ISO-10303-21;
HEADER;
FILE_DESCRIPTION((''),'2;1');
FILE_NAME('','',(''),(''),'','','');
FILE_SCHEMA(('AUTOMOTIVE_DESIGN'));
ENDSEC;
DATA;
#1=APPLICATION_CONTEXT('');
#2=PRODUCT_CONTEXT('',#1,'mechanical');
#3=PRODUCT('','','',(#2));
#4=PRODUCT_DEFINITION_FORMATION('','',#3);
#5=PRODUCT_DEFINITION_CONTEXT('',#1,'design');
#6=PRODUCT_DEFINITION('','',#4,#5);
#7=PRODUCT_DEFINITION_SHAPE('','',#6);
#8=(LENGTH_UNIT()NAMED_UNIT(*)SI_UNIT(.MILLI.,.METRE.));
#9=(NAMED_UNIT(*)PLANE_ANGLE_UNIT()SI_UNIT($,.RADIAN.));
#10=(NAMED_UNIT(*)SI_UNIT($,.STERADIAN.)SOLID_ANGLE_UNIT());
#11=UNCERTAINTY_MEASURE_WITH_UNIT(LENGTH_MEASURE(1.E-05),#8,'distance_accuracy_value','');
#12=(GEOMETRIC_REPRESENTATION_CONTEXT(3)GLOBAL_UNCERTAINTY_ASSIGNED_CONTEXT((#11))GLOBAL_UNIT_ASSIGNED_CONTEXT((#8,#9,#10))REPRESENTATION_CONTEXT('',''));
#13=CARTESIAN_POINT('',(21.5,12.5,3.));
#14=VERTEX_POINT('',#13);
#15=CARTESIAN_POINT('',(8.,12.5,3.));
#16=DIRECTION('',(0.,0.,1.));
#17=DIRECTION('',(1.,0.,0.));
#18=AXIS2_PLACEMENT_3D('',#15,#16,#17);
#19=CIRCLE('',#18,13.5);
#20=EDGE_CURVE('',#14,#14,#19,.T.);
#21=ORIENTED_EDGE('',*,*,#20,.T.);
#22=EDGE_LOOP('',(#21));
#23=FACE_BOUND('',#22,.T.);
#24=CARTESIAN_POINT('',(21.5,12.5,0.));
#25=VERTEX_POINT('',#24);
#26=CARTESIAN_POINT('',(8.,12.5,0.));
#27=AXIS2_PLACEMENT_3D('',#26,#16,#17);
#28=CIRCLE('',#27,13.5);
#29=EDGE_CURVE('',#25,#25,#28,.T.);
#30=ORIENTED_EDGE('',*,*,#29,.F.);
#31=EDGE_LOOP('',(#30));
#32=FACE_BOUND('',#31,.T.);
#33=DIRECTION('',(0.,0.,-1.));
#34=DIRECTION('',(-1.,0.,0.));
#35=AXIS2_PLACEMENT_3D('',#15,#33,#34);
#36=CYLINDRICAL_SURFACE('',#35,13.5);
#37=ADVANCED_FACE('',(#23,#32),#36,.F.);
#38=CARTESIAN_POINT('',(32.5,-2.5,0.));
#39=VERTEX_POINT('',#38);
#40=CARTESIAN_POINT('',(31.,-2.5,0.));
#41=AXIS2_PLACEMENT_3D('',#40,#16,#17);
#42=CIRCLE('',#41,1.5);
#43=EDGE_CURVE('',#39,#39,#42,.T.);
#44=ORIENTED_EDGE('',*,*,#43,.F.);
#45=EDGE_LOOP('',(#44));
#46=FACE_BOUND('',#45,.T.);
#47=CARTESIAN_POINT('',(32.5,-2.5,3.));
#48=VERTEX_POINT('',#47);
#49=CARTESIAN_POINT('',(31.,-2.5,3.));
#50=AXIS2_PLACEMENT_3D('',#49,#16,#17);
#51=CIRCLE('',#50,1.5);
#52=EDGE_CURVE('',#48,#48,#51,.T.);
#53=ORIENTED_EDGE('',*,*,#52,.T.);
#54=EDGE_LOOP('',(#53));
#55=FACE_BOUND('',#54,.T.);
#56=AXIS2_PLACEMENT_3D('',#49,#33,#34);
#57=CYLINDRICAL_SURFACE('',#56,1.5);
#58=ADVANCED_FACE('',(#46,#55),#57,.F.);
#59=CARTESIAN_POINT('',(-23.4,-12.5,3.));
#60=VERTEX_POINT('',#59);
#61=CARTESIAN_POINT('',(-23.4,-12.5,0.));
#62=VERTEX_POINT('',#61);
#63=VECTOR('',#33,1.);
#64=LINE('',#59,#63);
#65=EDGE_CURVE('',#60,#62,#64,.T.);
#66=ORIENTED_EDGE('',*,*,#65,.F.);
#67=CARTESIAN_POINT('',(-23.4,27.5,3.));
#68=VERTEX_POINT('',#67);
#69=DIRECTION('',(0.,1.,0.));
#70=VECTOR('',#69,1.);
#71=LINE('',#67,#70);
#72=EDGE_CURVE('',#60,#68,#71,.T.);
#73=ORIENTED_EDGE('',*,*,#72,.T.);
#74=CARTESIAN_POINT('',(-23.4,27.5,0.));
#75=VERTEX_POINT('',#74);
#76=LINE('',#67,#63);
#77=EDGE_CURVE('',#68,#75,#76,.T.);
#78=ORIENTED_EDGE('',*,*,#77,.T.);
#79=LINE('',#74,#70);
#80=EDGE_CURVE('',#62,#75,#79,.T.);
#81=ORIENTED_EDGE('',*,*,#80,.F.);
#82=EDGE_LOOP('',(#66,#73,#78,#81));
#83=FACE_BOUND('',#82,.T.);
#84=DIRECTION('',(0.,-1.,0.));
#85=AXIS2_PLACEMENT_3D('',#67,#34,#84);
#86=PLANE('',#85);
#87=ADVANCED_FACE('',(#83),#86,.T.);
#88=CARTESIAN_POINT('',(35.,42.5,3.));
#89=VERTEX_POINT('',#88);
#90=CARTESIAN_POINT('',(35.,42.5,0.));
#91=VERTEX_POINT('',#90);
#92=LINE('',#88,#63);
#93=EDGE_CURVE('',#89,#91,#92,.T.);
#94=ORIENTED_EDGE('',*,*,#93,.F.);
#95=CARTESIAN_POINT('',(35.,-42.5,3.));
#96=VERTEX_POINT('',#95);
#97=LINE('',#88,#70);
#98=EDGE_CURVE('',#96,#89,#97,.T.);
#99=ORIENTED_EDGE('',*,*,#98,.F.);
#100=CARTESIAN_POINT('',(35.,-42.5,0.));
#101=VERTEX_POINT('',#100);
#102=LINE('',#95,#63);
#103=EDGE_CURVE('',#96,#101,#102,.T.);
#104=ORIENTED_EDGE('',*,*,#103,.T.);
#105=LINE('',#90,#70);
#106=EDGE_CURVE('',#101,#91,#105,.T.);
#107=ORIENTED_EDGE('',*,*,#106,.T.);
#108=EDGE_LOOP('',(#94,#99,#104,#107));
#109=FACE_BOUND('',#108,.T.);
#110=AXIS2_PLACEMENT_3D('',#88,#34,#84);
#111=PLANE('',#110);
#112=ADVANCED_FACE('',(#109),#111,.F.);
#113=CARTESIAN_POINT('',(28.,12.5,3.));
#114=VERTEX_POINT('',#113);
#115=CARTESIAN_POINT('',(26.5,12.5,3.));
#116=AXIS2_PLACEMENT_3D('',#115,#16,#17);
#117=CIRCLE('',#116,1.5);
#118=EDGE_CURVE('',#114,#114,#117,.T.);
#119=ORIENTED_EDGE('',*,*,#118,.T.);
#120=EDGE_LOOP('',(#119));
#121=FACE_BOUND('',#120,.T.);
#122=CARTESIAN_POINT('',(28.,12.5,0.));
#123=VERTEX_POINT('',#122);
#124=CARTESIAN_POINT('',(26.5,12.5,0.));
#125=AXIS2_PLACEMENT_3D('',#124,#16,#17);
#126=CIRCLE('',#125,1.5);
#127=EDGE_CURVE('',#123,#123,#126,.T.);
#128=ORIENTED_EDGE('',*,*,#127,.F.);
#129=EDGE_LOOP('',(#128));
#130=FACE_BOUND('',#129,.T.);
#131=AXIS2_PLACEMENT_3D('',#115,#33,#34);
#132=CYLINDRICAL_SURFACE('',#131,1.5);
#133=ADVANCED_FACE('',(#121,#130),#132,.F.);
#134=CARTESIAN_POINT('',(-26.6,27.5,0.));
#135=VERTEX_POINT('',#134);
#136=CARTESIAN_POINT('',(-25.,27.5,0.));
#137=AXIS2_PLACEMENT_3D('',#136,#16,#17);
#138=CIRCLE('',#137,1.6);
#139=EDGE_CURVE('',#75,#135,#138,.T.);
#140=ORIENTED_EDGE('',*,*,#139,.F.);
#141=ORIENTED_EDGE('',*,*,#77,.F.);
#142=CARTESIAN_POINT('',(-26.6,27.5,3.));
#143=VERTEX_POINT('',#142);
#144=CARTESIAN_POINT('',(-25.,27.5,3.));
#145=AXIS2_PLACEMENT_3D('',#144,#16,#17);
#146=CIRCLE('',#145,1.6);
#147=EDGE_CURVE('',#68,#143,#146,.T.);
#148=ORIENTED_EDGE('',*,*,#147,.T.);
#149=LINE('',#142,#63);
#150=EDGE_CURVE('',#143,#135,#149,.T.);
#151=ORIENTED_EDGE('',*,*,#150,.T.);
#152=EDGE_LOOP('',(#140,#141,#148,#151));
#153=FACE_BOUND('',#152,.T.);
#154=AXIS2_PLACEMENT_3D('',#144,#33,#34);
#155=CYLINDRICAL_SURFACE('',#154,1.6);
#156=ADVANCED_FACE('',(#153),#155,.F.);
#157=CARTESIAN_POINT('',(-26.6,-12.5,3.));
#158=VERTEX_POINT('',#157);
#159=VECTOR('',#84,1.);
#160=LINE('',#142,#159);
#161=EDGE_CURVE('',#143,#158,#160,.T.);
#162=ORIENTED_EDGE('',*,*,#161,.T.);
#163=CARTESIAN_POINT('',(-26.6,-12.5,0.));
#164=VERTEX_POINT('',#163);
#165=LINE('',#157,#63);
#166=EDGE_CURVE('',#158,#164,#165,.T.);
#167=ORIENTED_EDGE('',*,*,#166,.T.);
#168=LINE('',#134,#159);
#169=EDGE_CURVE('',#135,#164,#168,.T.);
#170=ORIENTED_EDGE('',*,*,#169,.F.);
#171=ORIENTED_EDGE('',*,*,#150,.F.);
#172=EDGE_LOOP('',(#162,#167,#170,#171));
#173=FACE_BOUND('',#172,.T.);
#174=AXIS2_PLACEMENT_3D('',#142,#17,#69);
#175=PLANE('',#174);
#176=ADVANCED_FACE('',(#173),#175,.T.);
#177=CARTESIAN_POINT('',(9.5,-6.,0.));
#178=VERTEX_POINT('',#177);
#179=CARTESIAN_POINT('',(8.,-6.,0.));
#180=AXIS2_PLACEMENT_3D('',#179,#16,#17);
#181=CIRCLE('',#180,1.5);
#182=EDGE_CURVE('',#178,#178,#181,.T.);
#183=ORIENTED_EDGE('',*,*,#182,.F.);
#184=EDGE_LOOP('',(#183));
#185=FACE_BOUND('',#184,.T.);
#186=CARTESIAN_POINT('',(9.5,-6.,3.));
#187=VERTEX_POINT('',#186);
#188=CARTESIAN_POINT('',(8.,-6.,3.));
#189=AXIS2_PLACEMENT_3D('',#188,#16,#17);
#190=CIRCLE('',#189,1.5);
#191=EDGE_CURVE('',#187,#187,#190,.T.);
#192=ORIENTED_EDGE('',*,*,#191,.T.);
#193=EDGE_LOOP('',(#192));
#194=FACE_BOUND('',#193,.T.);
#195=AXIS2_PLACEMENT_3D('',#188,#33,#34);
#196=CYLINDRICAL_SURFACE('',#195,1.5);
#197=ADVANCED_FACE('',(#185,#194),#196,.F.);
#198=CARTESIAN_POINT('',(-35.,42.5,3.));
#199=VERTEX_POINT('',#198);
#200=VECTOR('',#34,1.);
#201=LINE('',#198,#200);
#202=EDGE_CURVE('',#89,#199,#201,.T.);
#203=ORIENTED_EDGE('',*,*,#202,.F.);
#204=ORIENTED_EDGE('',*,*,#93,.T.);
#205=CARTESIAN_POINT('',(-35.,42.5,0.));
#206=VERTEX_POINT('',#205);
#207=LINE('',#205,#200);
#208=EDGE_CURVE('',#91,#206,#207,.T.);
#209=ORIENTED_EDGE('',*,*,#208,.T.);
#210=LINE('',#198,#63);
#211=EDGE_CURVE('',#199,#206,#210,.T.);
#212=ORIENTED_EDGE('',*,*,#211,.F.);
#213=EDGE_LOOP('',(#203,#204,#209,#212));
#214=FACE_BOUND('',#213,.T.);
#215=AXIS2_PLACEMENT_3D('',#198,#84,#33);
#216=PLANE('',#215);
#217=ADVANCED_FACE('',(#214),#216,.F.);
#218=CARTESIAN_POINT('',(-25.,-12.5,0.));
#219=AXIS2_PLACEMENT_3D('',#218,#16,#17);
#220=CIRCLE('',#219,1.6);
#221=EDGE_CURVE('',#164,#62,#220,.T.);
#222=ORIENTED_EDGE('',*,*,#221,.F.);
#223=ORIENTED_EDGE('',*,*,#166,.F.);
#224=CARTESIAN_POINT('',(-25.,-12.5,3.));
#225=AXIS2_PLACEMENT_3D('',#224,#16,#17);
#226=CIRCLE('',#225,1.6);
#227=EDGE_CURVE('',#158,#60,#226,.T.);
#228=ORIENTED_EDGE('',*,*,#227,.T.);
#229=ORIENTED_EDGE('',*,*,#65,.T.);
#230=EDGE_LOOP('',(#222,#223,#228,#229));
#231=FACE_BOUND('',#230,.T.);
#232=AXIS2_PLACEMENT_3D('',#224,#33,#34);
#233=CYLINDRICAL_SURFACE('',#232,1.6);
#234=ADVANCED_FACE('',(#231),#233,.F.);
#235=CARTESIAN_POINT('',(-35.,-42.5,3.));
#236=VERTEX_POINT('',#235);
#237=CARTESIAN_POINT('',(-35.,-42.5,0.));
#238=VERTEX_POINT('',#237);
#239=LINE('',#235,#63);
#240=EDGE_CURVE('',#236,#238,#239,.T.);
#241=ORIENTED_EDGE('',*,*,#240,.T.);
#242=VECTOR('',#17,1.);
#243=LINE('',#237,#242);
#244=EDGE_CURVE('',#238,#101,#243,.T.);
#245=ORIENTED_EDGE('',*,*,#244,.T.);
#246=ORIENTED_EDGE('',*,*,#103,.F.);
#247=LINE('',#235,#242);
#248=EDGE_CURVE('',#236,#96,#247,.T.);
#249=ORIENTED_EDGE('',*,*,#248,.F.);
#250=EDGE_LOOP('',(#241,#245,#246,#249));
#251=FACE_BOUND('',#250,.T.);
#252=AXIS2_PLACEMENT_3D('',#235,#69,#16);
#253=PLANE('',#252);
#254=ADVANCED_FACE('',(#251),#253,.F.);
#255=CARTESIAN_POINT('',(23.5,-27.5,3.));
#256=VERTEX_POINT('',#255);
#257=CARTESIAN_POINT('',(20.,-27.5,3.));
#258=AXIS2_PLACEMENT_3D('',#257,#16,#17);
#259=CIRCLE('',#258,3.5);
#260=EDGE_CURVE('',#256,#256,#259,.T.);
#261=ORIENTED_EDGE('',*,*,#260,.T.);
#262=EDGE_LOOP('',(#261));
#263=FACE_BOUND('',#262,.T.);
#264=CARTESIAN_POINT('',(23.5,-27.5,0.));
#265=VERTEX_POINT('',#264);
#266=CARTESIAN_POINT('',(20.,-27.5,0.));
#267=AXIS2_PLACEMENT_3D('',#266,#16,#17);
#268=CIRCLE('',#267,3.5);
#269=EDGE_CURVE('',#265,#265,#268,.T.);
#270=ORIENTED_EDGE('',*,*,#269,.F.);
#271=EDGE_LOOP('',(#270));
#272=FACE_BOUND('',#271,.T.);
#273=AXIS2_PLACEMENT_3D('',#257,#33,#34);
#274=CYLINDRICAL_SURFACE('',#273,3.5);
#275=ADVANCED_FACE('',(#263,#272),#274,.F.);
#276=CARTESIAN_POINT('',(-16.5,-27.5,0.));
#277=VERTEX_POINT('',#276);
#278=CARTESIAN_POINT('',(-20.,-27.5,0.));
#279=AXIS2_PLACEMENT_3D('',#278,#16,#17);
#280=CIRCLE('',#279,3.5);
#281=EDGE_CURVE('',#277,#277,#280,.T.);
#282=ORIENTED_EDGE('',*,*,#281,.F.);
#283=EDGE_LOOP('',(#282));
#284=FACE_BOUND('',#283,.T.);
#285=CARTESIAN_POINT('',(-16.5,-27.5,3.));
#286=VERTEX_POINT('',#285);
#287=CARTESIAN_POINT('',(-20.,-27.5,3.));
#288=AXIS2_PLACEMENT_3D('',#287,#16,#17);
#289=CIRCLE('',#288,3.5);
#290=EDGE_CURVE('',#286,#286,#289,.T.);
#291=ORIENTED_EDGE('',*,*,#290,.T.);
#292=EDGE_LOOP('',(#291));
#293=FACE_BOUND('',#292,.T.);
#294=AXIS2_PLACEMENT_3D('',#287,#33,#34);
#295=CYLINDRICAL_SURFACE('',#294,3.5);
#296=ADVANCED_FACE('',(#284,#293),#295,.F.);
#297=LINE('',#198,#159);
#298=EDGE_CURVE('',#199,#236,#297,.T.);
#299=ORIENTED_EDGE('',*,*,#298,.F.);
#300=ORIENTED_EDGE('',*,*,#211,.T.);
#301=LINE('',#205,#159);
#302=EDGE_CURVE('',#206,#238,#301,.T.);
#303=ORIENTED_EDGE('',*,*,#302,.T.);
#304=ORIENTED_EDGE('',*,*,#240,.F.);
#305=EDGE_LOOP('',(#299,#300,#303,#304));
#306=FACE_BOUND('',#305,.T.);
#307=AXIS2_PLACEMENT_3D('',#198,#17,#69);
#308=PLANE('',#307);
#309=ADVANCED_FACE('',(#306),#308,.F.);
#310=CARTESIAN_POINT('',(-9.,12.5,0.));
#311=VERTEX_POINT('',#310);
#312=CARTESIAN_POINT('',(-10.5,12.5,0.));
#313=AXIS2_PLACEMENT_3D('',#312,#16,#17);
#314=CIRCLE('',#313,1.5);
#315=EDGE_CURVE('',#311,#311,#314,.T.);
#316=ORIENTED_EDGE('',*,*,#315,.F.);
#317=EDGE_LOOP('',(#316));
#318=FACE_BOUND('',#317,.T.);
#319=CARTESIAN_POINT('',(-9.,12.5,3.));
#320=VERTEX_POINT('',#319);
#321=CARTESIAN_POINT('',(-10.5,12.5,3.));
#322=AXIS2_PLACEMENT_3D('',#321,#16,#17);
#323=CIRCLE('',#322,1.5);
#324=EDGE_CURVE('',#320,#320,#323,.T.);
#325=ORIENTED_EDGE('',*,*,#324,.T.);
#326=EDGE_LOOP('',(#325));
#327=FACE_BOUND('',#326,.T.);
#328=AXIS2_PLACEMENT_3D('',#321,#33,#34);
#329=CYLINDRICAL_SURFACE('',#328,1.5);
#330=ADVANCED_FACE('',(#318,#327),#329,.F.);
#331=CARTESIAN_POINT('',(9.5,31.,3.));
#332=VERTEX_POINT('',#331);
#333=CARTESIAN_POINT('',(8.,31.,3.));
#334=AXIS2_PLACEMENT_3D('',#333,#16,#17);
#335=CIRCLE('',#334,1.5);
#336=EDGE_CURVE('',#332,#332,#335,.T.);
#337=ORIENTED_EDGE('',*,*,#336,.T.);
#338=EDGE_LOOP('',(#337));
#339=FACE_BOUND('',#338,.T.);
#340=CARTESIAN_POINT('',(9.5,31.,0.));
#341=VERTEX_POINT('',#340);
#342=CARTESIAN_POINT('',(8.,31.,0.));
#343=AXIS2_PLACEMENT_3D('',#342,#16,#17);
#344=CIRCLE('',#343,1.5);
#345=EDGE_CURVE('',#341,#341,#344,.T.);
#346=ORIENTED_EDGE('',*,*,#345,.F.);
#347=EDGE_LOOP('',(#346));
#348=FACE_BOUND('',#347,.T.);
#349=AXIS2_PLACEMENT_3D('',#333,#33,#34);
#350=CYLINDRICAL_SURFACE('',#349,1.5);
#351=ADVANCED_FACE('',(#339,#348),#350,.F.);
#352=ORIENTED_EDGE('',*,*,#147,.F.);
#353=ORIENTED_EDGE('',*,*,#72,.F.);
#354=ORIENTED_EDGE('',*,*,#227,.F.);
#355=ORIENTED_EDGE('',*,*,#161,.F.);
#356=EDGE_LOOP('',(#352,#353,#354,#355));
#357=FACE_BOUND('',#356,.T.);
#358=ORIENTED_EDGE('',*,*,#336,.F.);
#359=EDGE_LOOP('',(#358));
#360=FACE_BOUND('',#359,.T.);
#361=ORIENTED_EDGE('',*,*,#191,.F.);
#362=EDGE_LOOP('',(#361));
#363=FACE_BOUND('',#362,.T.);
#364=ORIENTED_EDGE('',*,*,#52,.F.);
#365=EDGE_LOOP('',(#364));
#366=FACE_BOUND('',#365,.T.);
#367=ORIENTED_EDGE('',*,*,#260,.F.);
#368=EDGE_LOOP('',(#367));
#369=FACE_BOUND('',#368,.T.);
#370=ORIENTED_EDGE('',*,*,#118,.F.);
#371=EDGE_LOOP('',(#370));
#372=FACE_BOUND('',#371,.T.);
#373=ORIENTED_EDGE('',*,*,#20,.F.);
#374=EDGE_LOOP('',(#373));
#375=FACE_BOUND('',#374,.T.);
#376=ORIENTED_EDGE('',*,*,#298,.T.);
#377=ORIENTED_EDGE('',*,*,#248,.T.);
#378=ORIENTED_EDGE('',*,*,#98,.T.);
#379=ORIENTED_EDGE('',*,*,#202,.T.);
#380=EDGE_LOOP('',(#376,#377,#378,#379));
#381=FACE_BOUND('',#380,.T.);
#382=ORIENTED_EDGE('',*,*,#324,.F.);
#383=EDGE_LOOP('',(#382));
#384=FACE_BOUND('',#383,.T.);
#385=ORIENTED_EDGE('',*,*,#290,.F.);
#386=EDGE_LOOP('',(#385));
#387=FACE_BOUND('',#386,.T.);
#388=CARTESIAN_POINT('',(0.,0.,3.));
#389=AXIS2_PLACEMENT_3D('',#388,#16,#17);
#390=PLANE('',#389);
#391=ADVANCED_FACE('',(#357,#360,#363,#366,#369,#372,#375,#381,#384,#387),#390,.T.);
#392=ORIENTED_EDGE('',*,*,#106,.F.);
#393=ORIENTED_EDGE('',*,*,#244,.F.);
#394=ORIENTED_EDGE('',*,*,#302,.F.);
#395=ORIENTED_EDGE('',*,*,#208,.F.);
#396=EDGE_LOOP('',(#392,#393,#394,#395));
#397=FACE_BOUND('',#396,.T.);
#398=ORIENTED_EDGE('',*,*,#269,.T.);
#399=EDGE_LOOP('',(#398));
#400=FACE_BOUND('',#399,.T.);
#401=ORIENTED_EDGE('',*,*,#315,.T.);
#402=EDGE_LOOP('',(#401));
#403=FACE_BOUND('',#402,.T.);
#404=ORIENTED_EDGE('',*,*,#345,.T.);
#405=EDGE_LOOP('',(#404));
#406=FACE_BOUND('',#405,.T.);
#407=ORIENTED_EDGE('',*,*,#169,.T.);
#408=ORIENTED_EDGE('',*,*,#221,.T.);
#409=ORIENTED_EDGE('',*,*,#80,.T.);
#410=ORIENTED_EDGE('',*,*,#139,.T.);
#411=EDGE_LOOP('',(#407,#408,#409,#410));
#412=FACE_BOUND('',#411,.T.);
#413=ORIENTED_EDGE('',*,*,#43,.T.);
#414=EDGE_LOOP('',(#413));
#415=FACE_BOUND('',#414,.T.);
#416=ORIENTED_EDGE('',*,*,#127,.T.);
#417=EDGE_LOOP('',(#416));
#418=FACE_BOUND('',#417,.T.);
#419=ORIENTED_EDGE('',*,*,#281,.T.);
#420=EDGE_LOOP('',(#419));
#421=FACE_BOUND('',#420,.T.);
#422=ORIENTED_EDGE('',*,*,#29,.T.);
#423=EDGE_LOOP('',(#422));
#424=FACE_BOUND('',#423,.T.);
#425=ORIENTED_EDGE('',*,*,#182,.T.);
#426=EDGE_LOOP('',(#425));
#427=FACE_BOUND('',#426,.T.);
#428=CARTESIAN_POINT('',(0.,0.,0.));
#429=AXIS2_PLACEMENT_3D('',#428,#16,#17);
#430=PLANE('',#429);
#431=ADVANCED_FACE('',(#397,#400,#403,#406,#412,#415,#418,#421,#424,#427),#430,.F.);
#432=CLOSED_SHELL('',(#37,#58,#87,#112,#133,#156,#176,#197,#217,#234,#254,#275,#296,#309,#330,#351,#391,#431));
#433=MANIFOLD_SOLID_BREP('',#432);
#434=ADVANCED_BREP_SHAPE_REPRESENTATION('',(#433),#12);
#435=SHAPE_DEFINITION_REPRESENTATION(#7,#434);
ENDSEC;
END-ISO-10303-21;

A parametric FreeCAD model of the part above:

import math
import FreeCAD as App
import Part
import Sketcher

V = App.Vector

doc = App.newDocument("Part")
body = doc.addObject("PartDesign::Body", "Body")

# Sketch on XY plane
sketch1 = body.newObject("Sketcher::SketchObject", "Sketch")
sketch1.AttachmentSupport = (doc.getObject("XY_Plane"), [""])
sketch1.MapMode = "FlatFace"
sketch1.addGeometry([
    Part.LineSegment(V(-35, 42.5, 0), V(-35, -42.5, 0)),  # 0
    Part.LineSegment(V(-35, -42.5, 0), V(35, -42.5, 0)),  # 1
    Part.LineSegment(V(35, -42.5, 0), V(35, 42.5, 0)),  # 2
    Part.LineSegment(V(35, 42.5, 0), V(-35, 42.5, 0)),  # 3
    Part.Circle(V(-20, -27.5, 0), V(0, 0, 1), 3.5),  # 4
    Part.Circle(V(20, -27.5, 0), V(0, 0, 1), 3.5),  # 5
    Part.Circle(V(8, -6, 0), V(0, 0, 1), 1.5),  # 6
    Part.Circle(V(31, -2.5, 0), V(0, 0, 1), 1.5),  # 7
    Part.LineSegment(V(-26.6, -12.5, 0), V(-26.6, 27.5, 0)),  # 8
    Part.ArcOfCircle(Part.Circle(V(-25, 27.5, 0), V(0, 0, 1), 1.6), math.radians(0), math.radians(180)),  # 9
    Part.LineSegment(V(-23.4, 27.5, 0), V(-23.4, -12.5, 0)),  # 10
    Part.ArcOfCircle(Part.Circle(V(-25, -12.5, 0), V(0, 0, 1), 1.6), math.radians(180), math.radians(360)),  # 11
    Part.Circle(V(-10.5, 12.5, 0), V(0, 0, 1), 1.5),  # 12
    Part.Circle(V(8, 12.5, 0), V(0, 0, 1), 13.5),  # 13
    Part.Circle(V(26.5, 12.5, 0), V(0, 0, 1), 1.5),  # 14
    Part.Circle(V(8, 31, 0), V(0, 0, 1), 1.5),  # 15
], False)
sketch1.addConstraint([
    Sketcher.Constraint("Coincident", 0, 2, 1, 1),
    Sketcher.Constraint("Coincident", 1, 2, 2, 1),
    Sketcher.Constraint("Coincident", 2, 2, 3, 1),
    Sketcher.Constraint("Coincident", 3, 2, 0, 1),
    Sketcher.Constraint("Tangent", 8, 2, 9, 2),
    Sketcher.Constraint("Tangent", 9, 1, 10, 1),
    Sketcher.Constraint("Tangent", 10, 2, 11, 2),
    Sketcher.Constraint("Tangent", 11, 1, 8, 1),
    Sketcher.Constraint("Vertical", 0),
    Sketcher.Constraint("Horizontal", 1),
    Sketcher.Constraint("Vertical", 2),
    Sketcher.Constraint("Horizontal", 3),
    Sketcher.Constraint("Vertical", 8),
    Sketcher.Constraint("Vertical", 10),
    Sketcher.Constraint("Equal", 4, 5),
    Sketcher.Constraint("Equal", 6, 7),
    Sketcher.Constraint("Equal", 7, 12),
    Sketcher.Constraint("Equal", 12, 14),
    Sketcher.Constraint("Equal", 14, 15),
    Sketcher.Constraint("Symmetric", 0, 2, 2, 2, -1, 1),
    Sketcher.Constraint("Symmetric", 4, 3, 5, 3, -2),
    Sketcher.Constraint("Horizontal", 12, 3, 13, 3),
    Sketcher.Constraint("Horizontal", 13, 3, 14, 3),
    Sketcher.Constraint("Vertical", 6, 3, 13, 3),
    Sketcher.Constraint("Vertical", 13, 3, 15, 3),
    Sketcher.Constraint("Diameter", 4, 7.0),
    Sketcher.Constraint("Diameter", 6, 3.0),
    Sketcher.Constraint("Diameter", 13, 27.0),
    Sketcher.Constraint("Radius", 9, 1.6),
    Sketcher.Constraint("DistanceX", 1, 1, 1, 2, 70.0),
    Sketcher.Constraint("DistanceY", 0, 2, 0, 1, 85.0),
    Sketcher.Constraint("DistanceY", 8, 1, 8, 2, 40.0),
    Sketcher.Constraint("DistanceX", 4, 3, -1, 1, 20.0),
    Sketcher.Constraint("DistanceX", -1, 1, 6, 3, 8.0),
    Sketcher.Constraint("DistanceY", 6, 3, -1, 1, 6.0),
    Sketcher.Constraint("DistanceX", -1, 1, 7, 3, 31.0),
    Sketcher.Constraint("DistanceX", 9, 3, -1, 1, 25.0),
    Sketcher.Constraint("DistanceY", -1, 1, 15, 3, 31.0),
    Sketcher.Constraint("DistanceY", 5, 3, 7, 3, 25.0),
    Sketcher.Constraint("DistanceY", 4, 3, 9, 3, 55.0),
    Sketcher.Constraint("DistanceY", 12, 3, 9, 3, 15.0),
    Sketcher.Constraint("DistanceX", 12, 3, 14, 3, 37.0),
    Sketcher.Constraint("DistanceY", 0, 2, 4, 3, 15.0),
    Sketcher.Constraint("DistanceX", 12, 3, -1, 1, 10.5),
])
pad1 = body.newObject("PartDesign::Pad", "Pad")
pad1.Profile = sketch1
pad1.Length = 3

doc.recompute()
